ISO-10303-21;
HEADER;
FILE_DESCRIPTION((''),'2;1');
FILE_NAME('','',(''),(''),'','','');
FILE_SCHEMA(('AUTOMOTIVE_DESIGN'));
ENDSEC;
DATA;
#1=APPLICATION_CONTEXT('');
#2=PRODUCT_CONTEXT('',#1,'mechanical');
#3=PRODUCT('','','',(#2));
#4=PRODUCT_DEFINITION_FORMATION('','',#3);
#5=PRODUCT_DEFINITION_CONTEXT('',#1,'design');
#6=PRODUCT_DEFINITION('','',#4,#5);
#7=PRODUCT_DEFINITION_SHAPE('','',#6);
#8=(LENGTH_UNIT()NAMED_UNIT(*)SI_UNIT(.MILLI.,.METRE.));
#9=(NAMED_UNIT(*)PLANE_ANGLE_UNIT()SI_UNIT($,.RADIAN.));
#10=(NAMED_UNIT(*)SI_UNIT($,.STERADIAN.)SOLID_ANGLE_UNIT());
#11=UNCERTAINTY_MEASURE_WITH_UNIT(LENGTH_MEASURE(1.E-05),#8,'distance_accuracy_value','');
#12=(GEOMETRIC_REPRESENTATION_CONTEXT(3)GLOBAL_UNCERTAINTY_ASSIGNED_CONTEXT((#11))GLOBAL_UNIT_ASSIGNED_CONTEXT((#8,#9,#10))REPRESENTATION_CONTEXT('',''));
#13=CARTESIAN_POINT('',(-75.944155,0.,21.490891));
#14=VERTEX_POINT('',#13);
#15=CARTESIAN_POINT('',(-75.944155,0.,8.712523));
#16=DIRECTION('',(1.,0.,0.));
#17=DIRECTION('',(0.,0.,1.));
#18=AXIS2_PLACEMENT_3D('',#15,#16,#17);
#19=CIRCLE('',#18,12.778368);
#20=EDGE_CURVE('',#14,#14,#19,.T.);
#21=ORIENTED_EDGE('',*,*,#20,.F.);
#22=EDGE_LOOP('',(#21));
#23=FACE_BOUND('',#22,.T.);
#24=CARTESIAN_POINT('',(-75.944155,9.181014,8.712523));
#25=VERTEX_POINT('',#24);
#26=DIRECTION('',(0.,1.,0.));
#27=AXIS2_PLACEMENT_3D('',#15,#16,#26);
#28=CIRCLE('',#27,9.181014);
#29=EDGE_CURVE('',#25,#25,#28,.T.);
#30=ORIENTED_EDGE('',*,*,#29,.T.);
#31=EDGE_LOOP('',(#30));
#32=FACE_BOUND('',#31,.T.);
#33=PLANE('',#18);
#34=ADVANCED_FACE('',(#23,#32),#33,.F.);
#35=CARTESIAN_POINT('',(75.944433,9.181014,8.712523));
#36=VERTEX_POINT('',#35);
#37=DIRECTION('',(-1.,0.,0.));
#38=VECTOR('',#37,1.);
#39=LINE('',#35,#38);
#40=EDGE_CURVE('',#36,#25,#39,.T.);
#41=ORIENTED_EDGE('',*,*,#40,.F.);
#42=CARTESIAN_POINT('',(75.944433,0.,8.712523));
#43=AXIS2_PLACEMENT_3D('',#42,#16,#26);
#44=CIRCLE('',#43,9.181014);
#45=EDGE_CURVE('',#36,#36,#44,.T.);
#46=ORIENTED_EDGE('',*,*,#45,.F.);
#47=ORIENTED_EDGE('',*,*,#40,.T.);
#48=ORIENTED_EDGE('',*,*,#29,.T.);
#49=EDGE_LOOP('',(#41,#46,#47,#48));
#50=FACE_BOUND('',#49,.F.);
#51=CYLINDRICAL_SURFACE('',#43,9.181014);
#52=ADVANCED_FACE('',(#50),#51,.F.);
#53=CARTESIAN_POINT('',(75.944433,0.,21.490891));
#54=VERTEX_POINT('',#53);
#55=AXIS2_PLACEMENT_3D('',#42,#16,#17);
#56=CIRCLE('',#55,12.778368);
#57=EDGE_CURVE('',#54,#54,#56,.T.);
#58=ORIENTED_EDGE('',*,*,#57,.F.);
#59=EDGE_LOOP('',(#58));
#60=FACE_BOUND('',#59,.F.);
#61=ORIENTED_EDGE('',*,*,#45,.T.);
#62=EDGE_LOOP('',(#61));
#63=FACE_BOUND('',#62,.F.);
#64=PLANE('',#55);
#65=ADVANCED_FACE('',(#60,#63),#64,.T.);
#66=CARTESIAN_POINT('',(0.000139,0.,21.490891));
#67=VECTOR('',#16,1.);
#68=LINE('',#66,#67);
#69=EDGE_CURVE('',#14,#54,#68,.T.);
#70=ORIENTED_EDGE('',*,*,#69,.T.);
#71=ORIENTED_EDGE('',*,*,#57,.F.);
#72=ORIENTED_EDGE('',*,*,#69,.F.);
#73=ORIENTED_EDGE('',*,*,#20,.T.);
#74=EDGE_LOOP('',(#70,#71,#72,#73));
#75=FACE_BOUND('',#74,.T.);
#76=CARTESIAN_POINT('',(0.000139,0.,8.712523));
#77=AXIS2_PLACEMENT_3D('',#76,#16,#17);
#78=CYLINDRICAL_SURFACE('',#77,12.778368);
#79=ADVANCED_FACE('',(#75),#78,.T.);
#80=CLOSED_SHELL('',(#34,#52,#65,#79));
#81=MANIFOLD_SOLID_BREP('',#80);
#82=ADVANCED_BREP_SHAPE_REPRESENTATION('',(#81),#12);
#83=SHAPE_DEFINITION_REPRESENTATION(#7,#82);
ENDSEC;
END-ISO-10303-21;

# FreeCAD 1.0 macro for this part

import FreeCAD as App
import Part
import Sketcher
Q = App.Units.Quantity


def add_polygon(sketch, points):
    """Adds a closed chain of lines whose ends are joined by coincident constraints."""
    first, n = sketch.GeometryCount, len(points)
    for a, b in zip(points, points[1:] + points[:1]):
        sketch.addGeometry(Part.LineSegment(App.Vector(*a, 0), App.Vector(*b, 0)), False)
    for i in range(n):
        sketch.addConstraint(Sketcher.Constraint("Coincident", first + i, 2, first + (i + 1) % n, 1))

doc = App.newDocument("Part")
params = doc.addObject("Spreadsheet::Sheet", "Params")
for row, (alias, value) in enumerate([
    ("revolution_angle", "360 deg"),
    ("pocket1_length", "6.41 in"),
], start=1):
    params.set(f"A{row}", alias)
    params.set(f"B{row}", "=" + value)
    params.setAlias(f"B{row}", alias)

body = doc.addObject("PartDesign::Body", "Body")

# Sketch on XZ plane
sketch1 = doc.addObject("Sketcher::SketchObject", "Sketch")
body.addObject(sketch1)
sketch1.AttachmentSupport = (doc.XZ_Plane, [""])
sketch1.MapMode = "FlatFace"
add_polygon(sketch1, [(-75.944155, 21.490891), (-75.944155, 8.712523), (75.944433, 8.712523), (75.944433, 21.490891)])  # lines 0-3
sketch1.addGeometry(Part.LineSegment(App.Vector(-75.944155, 8.712523, 0), App.Vector(75.944433, 8.712523, 0)), True)  # axis
sketch1.addConstraint([
    Sketcher.Constraint("Vertical", 0),
    Sketcher.Constraint("Horizontal", 1),
    Sketcher.Constraint("Vertical", 2),
    Sketcher.Constraint("Horizontal", 3),
    Sketcher.Constraint("Horizontal", 4),
    Sketcher.Constraint("Coincident", 4, 1, 0, 2),
    Sketcher.Constraint("Vertical", 2, 2, 4, 2),
    Sketcher.Constraint("DistanceX", 1, 1, 1, 2, Q("151.888588 mm")),
    Sketcher.Constraint("DistanceY", 0, 2, 0, 1, Q("12.778368 mm")),
    Sketcher.Constraint("DistanceY", -1, 1, 2, 2, Q("21.490891 mm")),
    Sketcher.Constraint("DistanceX", 0, 2, -1, 1, Q("75.944155 mm")),
])
revolution = doc.addObject("PartDesign::Revolution", "Revolution")
body.addObject(revolution)
revolution.Profile = sketch1
revolution.ReferenceAxis = (sketch1, ["Axis0"])
revolution.setExpression("Angle", "Params.revolution_angle")

# Sketch on YZ plane
sketch2 = doc.addObject("Sketcher::SketchObject", "Sketch001")
body.addObject(sketch2)
sketch2.AttachmentSupport = (doc.YZ_Plane, [""])
sketch2.MapMode = "FlatFace"
sketch2.AttachmentOffset = App.Placement(App.Vector(0, 0, 75.944433), App.Rotation())
sketch2.addGeometry(Part.Circle(App.Vector(0, 8.712523, 0), App.Vector(0, 0, 1), 9.181014), False)
sketch2.addConstraint([
    Sketcher.Constraint("PointOnObject", 0, 3, -2),
    Sketcher.Constraint("Diameter", 0, Q("18.362028 mm")),
    Sketcher.Constraint("DistanceY", -1, 1, 0, 3, Q("8.712523 mm")),
])
pocket1 = doc.addObject("PartDesign::Pocket", "Pocket")
body.addObject(pocket1)
pocket1.Profile = sketch2
pocket1.setExpression("Length", "Params.pocket1_length")

doc.recompute()
